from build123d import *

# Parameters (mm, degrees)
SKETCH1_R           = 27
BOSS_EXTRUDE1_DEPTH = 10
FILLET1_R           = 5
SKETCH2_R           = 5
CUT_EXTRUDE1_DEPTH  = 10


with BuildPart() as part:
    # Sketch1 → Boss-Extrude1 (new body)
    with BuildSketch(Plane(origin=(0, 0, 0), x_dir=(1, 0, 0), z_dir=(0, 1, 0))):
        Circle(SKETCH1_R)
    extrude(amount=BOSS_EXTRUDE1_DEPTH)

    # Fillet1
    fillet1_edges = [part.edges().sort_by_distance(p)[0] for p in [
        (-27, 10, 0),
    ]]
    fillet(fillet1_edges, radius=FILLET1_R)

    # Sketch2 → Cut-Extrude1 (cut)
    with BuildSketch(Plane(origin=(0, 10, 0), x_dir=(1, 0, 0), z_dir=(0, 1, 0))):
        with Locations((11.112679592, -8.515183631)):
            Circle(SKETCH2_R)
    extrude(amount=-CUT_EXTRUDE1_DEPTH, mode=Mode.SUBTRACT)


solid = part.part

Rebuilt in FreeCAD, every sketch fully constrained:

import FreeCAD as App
import Part
import Sketcher

V = App.Vector
Q = App.Units.Quantity


def edges_at(feature, points):
    """Names of the edges that pass closest to the given points."""
    edges = feature.Shape.Edges
    near = lambda p: min(range(len(edges)), key=lambda i: edges[i].distToShape(Part.Vertex(*p))[0])
    return sorted({f"Edge{near(p) + 1}" for p in points})

doc = App.newDocument("Part")
body = doc.addObject("PartDesign::Body", "Body")

sketch1 = body.newObject("Sketcher::SketchObject", "Sketch")
sketch1.AttachmentSupport = (doc.getObject("XZ_Plane"), [""])
sketch1.MapMode = "FlatFace"
sketch1.addGeometry(Part.Circle(V(0, 0, 0), V(0, 0, 1), 27), False)
sketch1.addConstraint(Sketcher.Constraint("Coincident", 0, 3, -1, 1))
sketch1.addConstraint(Sketcher.Constraint("Diameter", 0, Q("54 mm")))
pad1 = body.newObject("PartDesign::Pad", "Pad")
pad1.Profile = sketch1
pad1.Length = 10
pad1.Reversed = True
doc.recompute()

fillet = body.newObject("PartDesign::Fillet", "Fillet")
fillet.Base = (pad1, edges_at(pad1, [(-27, 10, 0)]))
fillet.Radius = 5

sketch2 = body.newObject("Sketcher::SketchObject", "Sketch001")
sketch2.AttachmentSupport = (doc.getObject("XZ_Plane"), [""])
sketch2.MapMode = "FlatFace"
sketch2.AttachmentOffset = App.Placement(V(0, 0, -10), App.Rotation())
sketch2.addGeometry(Part.Circle(V(11.11268, 8.515184, 0), V(0, 0, 1), 5), False)
sketch2.addConstraint(Sketcher.Constraint("Diameter", 0, Q("10 mm")))
sketch2.addConstraint(Sketcher.Constraint("DistanceX", -1, 1, 0, 3, Q("11.11268 mm")))
sketch2.addConstraint(Sketcher.Constraint("DistanceY", -1, 1, 0, 3, Q("8.515184 mm")))
pocket1 = body.newObject("PartDesign::Pocket", "Pocket")
pocket1.Profile = sketch2
pocket1.Length = 10
pocket1.Reversed = True

doc.recompute()
